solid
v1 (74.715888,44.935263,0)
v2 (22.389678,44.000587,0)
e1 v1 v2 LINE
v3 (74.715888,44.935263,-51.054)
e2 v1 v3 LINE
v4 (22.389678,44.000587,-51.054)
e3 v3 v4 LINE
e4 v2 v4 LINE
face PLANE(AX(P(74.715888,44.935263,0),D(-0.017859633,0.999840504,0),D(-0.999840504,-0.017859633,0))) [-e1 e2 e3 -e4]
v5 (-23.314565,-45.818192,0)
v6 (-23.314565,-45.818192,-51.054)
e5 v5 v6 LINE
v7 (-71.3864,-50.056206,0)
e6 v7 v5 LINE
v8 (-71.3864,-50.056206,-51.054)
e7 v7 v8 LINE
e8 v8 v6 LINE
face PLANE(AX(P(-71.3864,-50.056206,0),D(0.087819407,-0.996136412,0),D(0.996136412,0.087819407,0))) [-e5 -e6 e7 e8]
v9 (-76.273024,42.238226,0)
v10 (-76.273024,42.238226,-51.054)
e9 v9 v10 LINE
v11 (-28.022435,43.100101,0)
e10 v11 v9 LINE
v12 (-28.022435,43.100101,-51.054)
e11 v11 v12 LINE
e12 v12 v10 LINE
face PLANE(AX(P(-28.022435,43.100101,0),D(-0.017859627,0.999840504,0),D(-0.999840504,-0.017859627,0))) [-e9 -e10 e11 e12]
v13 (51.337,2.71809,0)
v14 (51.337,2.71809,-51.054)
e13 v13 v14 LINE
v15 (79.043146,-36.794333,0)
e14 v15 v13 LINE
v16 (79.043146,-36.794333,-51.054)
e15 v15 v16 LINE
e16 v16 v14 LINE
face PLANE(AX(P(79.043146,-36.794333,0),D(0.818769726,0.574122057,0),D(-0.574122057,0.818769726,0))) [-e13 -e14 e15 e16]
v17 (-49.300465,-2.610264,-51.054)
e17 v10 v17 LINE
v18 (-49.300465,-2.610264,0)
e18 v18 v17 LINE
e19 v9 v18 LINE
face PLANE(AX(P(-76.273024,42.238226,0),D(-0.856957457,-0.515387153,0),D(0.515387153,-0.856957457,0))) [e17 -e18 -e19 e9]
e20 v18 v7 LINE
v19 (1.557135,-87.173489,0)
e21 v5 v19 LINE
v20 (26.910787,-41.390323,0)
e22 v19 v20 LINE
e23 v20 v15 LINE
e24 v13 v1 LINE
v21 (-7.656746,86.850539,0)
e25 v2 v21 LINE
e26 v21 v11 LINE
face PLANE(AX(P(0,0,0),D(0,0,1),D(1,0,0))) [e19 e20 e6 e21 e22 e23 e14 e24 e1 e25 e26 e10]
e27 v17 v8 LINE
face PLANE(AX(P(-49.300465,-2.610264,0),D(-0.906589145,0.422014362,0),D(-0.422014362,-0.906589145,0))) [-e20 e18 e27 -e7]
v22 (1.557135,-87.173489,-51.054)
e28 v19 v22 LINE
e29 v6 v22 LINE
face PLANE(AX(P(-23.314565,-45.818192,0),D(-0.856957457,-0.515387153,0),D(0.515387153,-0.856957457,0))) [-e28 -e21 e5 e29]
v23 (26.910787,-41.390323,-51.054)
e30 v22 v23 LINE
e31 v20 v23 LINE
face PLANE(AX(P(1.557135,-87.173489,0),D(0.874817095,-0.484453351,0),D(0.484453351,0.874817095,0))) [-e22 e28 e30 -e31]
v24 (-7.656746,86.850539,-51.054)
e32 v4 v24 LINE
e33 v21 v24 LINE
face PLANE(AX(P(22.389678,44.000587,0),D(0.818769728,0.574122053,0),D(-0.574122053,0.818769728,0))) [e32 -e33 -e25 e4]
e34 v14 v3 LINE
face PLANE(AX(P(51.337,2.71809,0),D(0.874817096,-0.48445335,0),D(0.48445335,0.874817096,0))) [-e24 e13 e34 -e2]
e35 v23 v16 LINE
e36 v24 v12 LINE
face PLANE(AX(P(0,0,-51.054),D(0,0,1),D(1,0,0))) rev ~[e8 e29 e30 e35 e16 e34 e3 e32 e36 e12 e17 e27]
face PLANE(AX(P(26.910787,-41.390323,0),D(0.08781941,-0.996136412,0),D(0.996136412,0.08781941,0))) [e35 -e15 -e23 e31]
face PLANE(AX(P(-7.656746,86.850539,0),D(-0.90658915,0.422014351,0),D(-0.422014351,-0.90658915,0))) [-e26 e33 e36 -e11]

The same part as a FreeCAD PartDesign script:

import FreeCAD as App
import Part
import Sketcher
from FreeCAD import Vector
Q = App.Units.Quantity


def add_polygon(sketch, points):
    """Adds a closed chain of lines whose ends are joined by coincident constraints."""
    first, n = sketch.GeometryCount, len(points)
    for a, b in zip(points, points[1:] + points[:1]):
        sketch.addGeometry(Part.LineSegment(App.Vector(*a, 0), App.Vector(*b, 0)), False)
    for i in range(n):
        sketch.addConstraint(Sketcher.Constraint("Coincident", first + i, 2, first + (i + 1) % n, 1))

doc = App.newDocument("Part")
body = doc.addObject("PartDesign::Body", "Body")

# Sketch on XY plane
sketch1 = body.newObject("Sketcher::SketchObject", "Sketch")
sketch1.AttachmentSupport = (doc.getObject("XY_Plane"), [""])
sketch1.MapMode = "FlatFace"
add_polygon(sketch1, [(26.910787, -41.390323), (79.043146, -36.794333), (51.337, 2.71809), (74.715888, 44.935263), (22.389678, 44.000587), (-7.656746, 86.850539), (-28.022435, 43.100101), (-76.273024, 42.238226), (-49.300465, -2.610264), (-71.3864, -50.056206), (-23.314565, -45.818192), (1.557135, -87.173489)])  # lines 0-11
sketch1.addConstraint(Sketcher.Constraint("Parallel", 1, 4))
sketch1.addConstraint(Sketcher.Constraint("Parallel", 3, 6))
sketch1.addConstraint(Sketcher.Constraint("Parallel", 5, 8))
sketch1.addConstraint(Sketcher.Constraint("Parallel", 0, 9))
sketch1.addConstraint(Sketcher.Constraint("Parallel", 7, 10))
sketch1.addConstraint(Sketcher.Constraint("Parallel", 2, 11))
sketch1.addConstraint(Sketcher.Constraint("Equal", 1, 2))
sketch1.addConstraint(Sketcher.Constraint("Equal", 0, 3))
sketch1.addConstraint(Sketcher.Constraint("Equal", 3, 4))
sketch1.addConstraint(Sketcher.Constraint("Equal", 2, 5))
sketch1.addConstraint(Sketcher.Constraint("Equal", 5, 6))
sketch1.addConstraint(Sketcher.Constraint("Equal", 4, 7))
sketch1.addConstraint(Sketcher.Constraint("Equal", 7, 8))
sketch1.addConstraint(Sketcher.Constraint("Equal", 6, 9))
sketch1.addConstraint(Sketcher.Constraint("Equal", 9, 10))
sketch1.addConstraint(Sketcher.Constraint("Equal", 8, 11))
sketch1.addConstraint(Sketcher.Constraint("DistanceX", -1, 1, 1, 2, 51.337))
sketch1.addConstraint(Sketcher.Constraint("DistanceY", -1, 1, 5, 2, 43.100101))
sketch1.addConstraint(Sketcher.Constraint("DistanceX", 8, 2, -1, 1, 71.3864))
sketch1.addConstraint(Sketcher.Constraint("DistanceX", 7, 2, 9, 2, 25.9859))
sketch1.addConstraint(Sketcher.Constraint("DistanceX", 9, 2, 10, 2, 24.8717))
sketch1.addConstraint(Sketcher.Constraint("Distance", 0, 52.334558))
sketch1.addConstraint(Sketcher.Constraint("DistanceY", -1, 1, 1, 2, 2.71809))
sketch1.addConstraint(Sketcher.Constraint("DistanceX", -1, 1, 2, 2, 74.715888))
pad1 = body.newObject("PartDesign::Pad", "Pad")
pad1.Profile = sketch1
pad1.Length = Q("2.01 in")
pad1.Reversed = True

doc.recompute()
